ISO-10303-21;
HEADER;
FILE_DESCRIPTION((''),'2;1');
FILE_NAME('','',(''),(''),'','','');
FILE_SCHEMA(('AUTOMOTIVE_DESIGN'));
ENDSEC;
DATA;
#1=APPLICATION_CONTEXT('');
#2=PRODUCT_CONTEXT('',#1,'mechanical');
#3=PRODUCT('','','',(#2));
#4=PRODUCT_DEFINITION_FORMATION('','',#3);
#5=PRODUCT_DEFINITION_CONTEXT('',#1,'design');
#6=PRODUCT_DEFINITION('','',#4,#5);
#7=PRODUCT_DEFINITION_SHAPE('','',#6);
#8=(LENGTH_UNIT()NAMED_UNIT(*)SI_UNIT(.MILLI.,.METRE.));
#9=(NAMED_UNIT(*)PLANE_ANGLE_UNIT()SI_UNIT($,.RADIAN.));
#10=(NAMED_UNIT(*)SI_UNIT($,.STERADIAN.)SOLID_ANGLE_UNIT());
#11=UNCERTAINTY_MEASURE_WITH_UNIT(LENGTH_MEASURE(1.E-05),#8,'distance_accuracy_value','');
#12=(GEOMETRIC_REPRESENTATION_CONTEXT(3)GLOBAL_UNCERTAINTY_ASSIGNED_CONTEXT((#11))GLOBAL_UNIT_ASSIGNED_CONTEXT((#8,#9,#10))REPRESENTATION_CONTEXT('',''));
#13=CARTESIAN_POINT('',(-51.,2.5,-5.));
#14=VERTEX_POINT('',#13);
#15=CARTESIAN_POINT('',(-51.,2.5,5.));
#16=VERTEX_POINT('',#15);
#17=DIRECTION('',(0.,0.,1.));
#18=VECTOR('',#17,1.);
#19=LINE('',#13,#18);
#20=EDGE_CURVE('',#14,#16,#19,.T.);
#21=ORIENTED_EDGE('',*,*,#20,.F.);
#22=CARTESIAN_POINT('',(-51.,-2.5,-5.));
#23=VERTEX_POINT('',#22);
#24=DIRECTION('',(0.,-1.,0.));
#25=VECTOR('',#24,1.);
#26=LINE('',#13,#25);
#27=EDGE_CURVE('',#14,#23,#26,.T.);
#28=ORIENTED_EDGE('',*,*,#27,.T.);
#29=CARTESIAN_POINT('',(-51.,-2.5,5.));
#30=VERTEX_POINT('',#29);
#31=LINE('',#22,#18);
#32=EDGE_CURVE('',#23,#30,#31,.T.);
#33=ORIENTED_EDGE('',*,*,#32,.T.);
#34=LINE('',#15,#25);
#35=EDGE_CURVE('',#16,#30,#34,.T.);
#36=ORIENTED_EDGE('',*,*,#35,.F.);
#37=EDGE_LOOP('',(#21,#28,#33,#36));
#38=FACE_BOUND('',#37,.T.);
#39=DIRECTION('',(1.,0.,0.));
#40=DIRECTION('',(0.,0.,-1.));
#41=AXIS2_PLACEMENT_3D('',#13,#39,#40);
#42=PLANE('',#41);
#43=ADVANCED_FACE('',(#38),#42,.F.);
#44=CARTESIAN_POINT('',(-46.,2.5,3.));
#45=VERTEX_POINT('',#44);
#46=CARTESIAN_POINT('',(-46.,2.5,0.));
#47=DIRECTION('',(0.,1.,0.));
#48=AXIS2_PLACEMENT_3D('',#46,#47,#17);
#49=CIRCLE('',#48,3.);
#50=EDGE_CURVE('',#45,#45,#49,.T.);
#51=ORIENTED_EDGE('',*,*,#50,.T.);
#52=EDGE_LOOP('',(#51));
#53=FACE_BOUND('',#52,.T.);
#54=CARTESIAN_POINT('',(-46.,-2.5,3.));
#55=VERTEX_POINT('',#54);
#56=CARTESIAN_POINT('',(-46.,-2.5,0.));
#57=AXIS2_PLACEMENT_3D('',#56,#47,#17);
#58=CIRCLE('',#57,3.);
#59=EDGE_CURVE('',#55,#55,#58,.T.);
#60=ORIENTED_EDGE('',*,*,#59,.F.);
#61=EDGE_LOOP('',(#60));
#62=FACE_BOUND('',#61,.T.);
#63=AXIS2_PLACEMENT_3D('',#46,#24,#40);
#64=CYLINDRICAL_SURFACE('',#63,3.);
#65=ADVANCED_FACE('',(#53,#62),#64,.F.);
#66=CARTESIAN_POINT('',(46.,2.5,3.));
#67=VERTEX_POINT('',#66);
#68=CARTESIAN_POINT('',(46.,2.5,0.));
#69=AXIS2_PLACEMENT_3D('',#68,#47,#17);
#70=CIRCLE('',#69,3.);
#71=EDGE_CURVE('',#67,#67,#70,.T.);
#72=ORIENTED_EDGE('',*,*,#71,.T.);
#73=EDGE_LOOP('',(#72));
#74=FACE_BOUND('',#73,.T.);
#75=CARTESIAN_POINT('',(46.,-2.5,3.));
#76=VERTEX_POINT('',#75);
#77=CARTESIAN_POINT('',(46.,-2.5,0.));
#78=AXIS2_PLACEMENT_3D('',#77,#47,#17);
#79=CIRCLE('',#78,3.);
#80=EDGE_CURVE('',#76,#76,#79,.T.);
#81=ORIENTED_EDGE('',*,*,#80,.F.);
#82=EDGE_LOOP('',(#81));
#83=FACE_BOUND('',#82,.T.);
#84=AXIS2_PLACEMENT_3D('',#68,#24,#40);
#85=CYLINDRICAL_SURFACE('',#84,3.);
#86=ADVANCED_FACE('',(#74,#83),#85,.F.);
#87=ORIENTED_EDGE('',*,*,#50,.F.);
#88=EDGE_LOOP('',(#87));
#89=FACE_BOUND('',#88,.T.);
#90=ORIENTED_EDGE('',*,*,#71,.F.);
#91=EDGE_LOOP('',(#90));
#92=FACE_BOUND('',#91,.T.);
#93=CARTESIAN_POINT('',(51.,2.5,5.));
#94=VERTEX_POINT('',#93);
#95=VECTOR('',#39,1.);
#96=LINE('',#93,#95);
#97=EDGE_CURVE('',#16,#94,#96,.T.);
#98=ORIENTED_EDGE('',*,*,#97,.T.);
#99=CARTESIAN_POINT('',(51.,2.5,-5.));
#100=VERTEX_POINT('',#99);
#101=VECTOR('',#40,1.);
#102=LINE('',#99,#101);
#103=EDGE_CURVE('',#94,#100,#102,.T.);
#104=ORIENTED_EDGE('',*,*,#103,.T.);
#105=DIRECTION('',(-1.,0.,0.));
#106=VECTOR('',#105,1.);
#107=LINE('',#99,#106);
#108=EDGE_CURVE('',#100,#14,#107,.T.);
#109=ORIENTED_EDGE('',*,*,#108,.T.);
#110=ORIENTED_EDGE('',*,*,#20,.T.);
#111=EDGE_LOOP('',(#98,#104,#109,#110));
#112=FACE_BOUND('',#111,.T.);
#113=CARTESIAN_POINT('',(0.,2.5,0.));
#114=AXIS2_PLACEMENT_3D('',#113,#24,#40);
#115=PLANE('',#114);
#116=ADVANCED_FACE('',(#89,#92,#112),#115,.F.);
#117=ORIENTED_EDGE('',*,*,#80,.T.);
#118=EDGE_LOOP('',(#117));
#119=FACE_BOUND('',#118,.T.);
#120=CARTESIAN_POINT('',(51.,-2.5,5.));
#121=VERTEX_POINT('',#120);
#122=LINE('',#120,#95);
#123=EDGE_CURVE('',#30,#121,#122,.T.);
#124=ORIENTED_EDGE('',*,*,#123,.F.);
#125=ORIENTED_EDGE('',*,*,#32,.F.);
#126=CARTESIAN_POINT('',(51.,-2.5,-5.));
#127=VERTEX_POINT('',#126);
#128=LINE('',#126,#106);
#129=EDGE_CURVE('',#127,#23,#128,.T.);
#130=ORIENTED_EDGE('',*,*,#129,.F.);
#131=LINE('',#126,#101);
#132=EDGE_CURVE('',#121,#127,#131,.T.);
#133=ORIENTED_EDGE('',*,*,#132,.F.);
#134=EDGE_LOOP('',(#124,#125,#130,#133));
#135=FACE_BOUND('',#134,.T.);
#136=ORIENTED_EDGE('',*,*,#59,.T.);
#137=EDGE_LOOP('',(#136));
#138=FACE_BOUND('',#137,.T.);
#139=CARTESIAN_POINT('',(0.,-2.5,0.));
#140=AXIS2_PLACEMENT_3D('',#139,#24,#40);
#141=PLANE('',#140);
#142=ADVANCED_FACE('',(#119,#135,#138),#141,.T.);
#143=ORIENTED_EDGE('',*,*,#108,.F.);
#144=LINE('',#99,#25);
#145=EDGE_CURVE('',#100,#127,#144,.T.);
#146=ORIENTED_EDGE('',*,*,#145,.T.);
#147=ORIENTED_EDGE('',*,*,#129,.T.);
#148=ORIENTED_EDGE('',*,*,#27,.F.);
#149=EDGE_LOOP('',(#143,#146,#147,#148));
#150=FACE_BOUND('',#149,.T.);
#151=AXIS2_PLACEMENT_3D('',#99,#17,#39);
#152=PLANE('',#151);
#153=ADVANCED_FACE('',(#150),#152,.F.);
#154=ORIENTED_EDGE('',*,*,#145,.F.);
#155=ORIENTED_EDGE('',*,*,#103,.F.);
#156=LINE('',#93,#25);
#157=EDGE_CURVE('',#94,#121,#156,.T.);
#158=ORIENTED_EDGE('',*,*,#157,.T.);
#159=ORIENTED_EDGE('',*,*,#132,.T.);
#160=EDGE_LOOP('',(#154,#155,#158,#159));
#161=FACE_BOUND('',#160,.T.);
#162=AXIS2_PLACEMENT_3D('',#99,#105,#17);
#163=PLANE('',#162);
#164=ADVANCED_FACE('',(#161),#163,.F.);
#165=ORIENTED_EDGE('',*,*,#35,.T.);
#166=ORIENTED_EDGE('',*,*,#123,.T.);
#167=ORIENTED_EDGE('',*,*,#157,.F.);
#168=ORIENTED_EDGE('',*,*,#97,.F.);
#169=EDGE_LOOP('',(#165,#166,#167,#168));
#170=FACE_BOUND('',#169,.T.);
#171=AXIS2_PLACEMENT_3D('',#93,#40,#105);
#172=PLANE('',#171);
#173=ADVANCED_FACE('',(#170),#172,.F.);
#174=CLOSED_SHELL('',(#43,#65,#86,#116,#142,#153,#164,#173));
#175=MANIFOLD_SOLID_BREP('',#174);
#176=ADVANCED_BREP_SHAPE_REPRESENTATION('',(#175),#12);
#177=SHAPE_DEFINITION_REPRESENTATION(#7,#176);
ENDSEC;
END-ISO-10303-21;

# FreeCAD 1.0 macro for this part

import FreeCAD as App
import Part
import Sketcher

V = App.Vector

doc = App.newDocument("Part")
body = doc.addObject("PartDesign::Body", "Body")

# Sketch on XZ plane
sketch1 = doc.addObject("Sketcher::SketchObject", "Sketch")
body.addObject(sketch1)
sketch1.AttachmentSupport = (doc.XZ_Plane, [""])
sketch1.MapMode = "FlatFace"
sketch1.addGeometry([
    Part.LineSegment(V(-51, -5, 0), V(-51, 5, 0)),  # 0
    Part.LineSegment(V(-51, 5, 0), V(51, 5, 0)),  # 1
    Part.LineSegment(V(51, 5, 0), V(51, -5, 0)),  # 2
    Part.LineSegment(V(51, -5, 0), V(-51, -5, 0)),  # 3
    Part.Circle(V(-46, 0, 0), V(0, 0, 1), 3),  # 4
    Part.Circle(V(46, 0, 0), V(0, 0, 1), 3),  # 5
], False)
sketch1.addConstraint([
    Sketcher.Constraint("Coincident", 0, 2, 1, 1),
    Sketcher.Constraint("Coincident", 1, 2, 2, 1),
    Sketcher.Constraint("Coincident", 2, 2, 3, 1),
    Sketcher.Constraint("Coincident", 3, 2, 0, 1),
    Sketcher.Constraint("Vertical", 0),
    Sketcher.Constraint("Horizontal", 1),
    Sketcher.Constraint("Vertical", 2),
    Sketcher.Constraint("Horizontal", 3),
    Sketcher.Constraint("Equal", 4, 5),
    Sketcher.Constraint("Symmetric", 4, 3, 5, 3, -1, 1),
    Sketcher.Constraint("Symmetric", 0, 2, 2, 2, -1, 1),
    Sketcher.Constraint("PointOnObject", 4, 3, -1),
    Sketcher.Constraint("Diameter", 4, 6.0),
    Sketcher.Constraint("DistanceX", 1, 1, 1, 2, 102.0),
    Sketcher.Constraint("DistanceY", 0, 1, 0, 2, 10.0),
    Sketcher.Constraint("DistanceX", 4, 3, -1, 1, 46.0),
])
pad1 = doc.addObject("PartDesign::Pad", "Pad")
body.addObject(pad1)
pad1.Profile = sketch1
pad1.Length = 5
pad1.Midplane = True

doc.recompute()
